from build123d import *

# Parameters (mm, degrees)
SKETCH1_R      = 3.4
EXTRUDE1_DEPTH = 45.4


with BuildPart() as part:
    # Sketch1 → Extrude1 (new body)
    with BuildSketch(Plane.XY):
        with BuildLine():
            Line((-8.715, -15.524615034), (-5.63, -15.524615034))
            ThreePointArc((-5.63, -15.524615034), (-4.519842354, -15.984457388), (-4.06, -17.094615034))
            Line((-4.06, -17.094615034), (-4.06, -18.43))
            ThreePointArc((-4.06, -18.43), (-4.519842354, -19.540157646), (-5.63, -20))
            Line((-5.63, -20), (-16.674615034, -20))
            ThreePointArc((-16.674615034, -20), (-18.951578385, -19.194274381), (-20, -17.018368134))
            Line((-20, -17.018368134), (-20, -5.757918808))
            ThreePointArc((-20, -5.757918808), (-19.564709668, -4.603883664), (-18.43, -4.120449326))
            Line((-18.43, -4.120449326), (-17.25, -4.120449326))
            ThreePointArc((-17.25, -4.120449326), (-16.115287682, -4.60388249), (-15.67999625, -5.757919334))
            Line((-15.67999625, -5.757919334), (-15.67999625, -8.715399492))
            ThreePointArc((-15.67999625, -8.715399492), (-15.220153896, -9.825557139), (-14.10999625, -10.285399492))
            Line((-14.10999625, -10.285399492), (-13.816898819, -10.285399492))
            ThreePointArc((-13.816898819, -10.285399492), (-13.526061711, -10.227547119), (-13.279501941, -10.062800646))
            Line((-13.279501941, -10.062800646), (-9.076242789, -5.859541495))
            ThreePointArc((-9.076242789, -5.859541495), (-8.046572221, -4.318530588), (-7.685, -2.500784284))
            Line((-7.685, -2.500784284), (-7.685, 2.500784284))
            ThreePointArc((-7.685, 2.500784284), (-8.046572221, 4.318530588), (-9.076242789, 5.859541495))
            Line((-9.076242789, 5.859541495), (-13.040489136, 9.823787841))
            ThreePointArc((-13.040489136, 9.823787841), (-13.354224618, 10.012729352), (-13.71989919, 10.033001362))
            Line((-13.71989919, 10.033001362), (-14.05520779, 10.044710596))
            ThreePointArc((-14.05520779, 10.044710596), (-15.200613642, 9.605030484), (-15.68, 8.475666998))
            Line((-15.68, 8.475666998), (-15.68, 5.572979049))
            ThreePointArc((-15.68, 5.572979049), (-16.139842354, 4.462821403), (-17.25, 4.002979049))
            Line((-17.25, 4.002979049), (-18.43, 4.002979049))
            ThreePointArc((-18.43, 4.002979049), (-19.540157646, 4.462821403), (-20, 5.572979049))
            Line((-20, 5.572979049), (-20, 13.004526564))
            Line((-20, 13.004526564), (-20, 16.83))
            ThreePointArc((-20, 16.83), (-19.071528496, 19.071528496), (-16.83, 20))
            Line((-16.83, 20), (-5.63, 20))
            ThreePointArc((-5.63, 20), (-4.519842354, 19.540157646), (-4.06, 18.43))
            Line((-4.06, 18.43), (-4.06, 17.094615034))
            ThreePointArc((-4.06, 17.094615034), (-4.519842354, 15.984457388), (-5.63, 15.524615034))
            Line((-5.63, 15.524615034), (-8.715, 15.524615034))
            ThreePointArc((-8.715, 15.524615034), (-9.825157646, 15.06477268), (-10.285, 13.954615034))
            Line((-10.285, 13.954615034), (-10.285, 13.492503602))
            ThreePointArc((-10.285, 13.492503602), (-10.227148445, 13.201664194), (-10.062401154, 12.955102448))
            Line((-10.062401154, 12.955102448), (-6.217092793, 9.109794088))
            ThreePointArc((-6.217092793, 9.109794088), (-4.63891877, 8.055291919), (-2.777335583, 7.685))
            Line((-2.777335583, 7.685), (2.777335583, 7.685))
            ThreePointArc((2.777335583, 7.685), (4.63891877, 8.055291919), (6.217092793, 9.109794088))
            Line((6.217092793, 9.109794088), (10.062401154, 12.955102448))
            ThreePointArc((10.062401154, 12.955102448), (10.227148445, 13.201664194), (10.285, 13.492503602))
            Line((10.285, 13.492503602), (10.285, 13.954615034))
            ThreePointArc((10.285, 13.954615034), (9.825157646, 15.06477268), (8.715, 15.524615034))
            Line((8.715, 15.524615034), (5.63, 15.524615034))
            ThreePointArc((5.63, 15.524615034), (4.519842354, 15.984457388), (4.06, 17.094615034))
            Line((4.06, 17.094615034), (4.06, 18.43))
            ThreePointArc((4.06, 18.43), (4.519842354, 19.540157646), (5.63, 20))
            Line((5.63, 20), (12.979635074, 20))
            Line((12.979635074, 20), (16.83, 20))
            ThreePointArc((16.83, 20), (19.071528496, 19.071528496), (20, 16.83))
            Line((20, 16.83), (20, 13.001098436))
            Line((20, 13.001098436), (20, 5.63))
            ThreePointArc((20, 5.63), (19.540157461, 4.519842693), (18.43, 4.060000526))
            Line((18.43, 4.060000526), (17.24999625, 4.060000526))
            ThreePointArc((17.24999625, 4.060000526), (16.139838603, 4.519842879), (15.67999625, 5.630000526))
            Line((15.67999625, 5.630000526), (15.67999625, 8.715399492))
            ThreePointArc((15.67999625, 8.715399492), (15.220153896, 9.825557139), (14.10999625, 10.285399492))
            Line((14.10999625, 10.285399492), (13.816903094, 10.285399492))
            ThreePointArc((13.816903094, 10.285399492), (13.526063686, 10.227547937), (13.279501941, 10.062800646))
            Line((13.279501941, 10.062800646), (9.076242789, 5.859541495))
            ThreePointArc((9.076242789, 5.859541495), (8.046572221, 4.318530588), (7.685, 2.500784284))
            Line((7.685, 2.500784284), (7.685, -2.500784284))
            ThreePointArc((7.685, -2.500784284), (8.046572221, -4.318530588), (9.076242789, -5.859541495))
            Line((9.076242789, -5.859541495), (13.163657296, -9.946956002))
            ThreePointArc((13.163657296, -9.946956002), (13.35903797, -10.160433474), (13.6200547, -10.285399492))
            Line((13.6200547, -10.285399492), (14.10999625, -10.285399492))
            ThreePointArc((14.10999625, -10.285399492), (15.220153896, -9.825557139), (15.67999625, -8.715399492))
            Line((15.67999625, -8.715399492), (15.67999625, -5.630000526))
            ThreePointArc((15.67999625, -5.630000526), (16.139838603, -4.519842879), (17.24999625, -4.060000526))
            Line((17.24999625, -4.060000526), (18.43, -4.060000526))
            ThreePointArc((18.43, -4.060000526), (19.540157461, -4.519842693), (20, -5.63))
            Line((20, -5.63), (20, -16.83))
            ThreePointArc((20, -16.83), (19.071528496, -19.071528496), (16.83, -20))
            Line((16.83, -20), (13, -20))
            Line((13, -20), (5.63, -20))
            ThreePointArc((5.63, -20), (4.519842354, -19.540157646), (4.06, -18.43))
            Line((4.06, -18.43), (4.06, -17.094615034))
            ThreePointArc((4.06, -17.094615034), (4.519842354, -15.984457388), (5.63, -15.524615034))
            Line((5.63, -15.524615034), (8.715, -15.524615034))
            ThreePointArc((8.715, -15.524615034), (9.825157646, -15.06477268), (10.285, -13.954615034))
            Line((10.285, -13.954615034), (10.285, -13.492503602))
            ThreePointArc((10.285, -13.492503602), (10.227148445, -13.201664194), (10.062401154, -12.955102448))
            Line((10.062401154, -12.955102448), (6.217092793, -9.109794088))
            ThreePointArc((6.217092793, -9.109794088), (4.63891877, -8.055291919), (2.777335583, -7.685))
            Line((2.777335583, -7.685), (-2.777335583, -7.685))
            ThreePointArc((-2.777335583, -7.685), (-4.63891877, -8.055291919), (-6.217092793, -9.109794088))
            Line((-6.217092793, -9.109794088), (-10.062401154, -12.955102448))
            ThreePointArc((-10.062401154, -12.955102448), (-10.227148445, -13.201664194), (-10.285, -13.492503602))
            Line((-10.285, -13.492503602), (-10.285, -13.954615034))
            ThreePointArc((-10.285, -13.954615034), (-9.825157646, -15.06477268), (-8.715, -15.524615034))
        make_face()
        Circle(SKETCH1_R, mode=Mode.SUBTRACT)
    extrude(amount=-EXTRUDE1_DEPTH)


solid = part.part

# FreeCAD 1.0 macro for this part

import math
import FreeCAD as App
import Part
import Sketcher
from FreeCAD import Vector
Q = App.Units.Quantity

doc = App.newDocument("Part")
body = doc.addObject("PartDesign::Body", "Body")

sketch1 = body.newObject("Sketcher::SketchObject", "Sketch")
sketch1.AttachmentSupport = (doc.getObject("XY_Plane"), [""])
sketch1.MapMode = "FlatFace"
sketch1.addGeometry(Part.LineSegment(Vector(-5.63, -15.52, 0), Vector(-8.71, -15.52, 0)), False)
sketch1.addGeometry(Part.ArcOfCircle(Part.Circle(Vector(-8.71, -13.95, 0), Vector(0, 0, 1), 1.57), math.radians(-180), math.radians(-90)), False)
sketch1.addGeometry(Part.LineSegment(Vector(-10.29, -13.95, 0), Vector(-10.29, -13.49, 0)), False)
sketch1.addGeometry(Part.ArcOfCircle(Part.Circle(Vector(-9.52, -13.49, 0), Vector(0, 0, 1), 0.76), math.radians(135), math.radians(180)), False)
sketch1.addGeometry(Part.LineSegment(Vector(-10.06, -12.96, 0), Vector(-6.22, -9.11, 0)), False)
sketch1.addGeometry(Part.ArcOfCircle(Part.Circle(Vector(-2.78, -12.55, 0), Vector(0, 0, 1), 4.86), math.radians(90), math.radians(135)), False)
sketch1.addGeometry(Part.LineSegment(Vector(-2.78, -7.68, 0), Vector(2.78, -7.68, 0)), False)
sketch1.addGeometry(Part.ArcOfCircle(Part.Circle(Vector(2.78, -12.55, 0), Vector(0, 0, 1), 4.86), math.radians(45), math.radians(90)), False)
sketch1.addGeometry(Part.LineSegment(Vector(6.22, -9.11, 0), Vector(10.06, -12.96, 0)), False)
sketch1.addGeometry(Part.ArcOfCircle(Part.Circle(Vector(9.52, -13.49, 0), Vector(0, 0, 1), 0.76), math.radians(0), math.radians(45)), False)
sketch1.addGeometry(Part.LineSegment(Vector(10.29, -13.49, 0), Vector(10.29, -13.95, 0)), False)
sketch1.addGeometry(Part.ArcOfCircle(Part.Circle(Vector(8.71, -13.95, 0), Vector(0, 0, 1), 1.57), math.radians(-90), math.radians(0)), False)
sketch1.addGeometry(Part.LineSegment(Vector(8.71, -15.52, 0), Vector(5.63, -15.52, 0)), False)
sketch1.addGeometry(Part.ArcOfCircle(Part.Circle(Vector(5.63, -17.09, 0), Vector(0, 0, 1), 1.57), math.radians(90), math.radians(180)), False)
sketch1.addGeometry(Part.LineSegment(Vector(4.06, -17.09, 0), Vector(4.06, -18.43, 0)), False)
sketch1.addGeometry(Part.ArcOfCircle(Part.Circle(Vector(5.63, -18.43, 0), Vector(0, 0, 1), 1.57), math.radians(-180), math.radians(-90)), False)
sketch1.addGeometry(Part.LineSegment(Vector(5.63, -20, 0), Vector(16.83, -20, 0)), False)
sketch1.addGeometry(Part.ArcOfCircle(Part.Circle(Vector(16.83, -16.83, 0), Vector(0, 0, 1), 3.17), math.radians(-90), math.radians(0)), False)
sketch1.addGeometry(Part.LineSegment(Vector(20, -16.83, 0), Vector(20, -5.63, 0)), False)
sketch1.addGeometry(Part.ArcOfCircle(Part.Circle(Vector(18.43, -5.63, 0), Vector(0, 0, 1), 1.57), math.radians(0), math.radians(90)), False)
sketch1.addGeometry(Part.LineSegment(Vector(18.43, -4.06, 0), Vector(17.25, -4.06, 0)), False)
sketch1.addGeometry(Part.ArcOfCircle(Part.Circle(Vector(17.25, -5.63, 0), Vector(0, 0, 1), 1.57), math.radians(90), math.radians(180)), False)
sketch1.addGeometry(Part.LineSegment(Vector(15.68, -5.63, 0), Vector(15.68, -8.72, 0)), False)
sketch1.addGeometry(Part.ArcOfCircle(Part.Circle(Vector(14.11, -8.72, 0), Vector(0, 0, 1), 1.57), math.radians(-90), math.radians(0)), False)
sketch1.addGeometry(Part.LineSegment(Vector(14.11, -10.29, 0), Vector(13.62, -10.29, 0)), False)
sketch1.addGeometry(Part.ArcOfCircle(Part.Circle(Vector(13.81, -9.55, 0), Vector(0, 0, 1), 0.76), math.radians(-149), math.radians(-105)), False)
sketch1.addGeometry(Part.LineSegment(Vector(13.16, -9.95, 0), Vector(9.08, -5.86, 0)), False)
sketch1.addGeometry(Part.ArcOfCircle(Part.Circle(Vector(12.44, -2.5, 0), Vector(0, 0, 1), 4.75), math.radians(-180), math.radians(-135)), False)
sketch1.addGeometry(Part.LineSegment(Vector(7.68, -2.5, 0), Vector(7.68, 2.5, 0)), False)
sketch1.addGeometry(Part.ArcOfCircle(Part.Circle(Vector(12.44, 2.5, 0), Vector(0, 0, 1), 4.75), math.radians(135), math.radians(180)), False)
sketch1.addGeometry(Part.LineSegment(Vector(9.08, 5.86, 0), Vector(13.28, 10.06, 0)), False)
sketch1.addGeometry(Part.ArcOfCircle(Part.Circle(Vector(13.82, 9.53, 0), Vector(0, 0, 1), 0.76), math.radians(90), math.radians(135)), False)
sketch1.addGeometry(Part.LineSegment(Vector(13.82, 10.29, 0), Vector(14.11, 10.29, 0)), False)
sketch1.addGeometry(Part.ArcOfCircle(Part.Circle(Vector(14.11, 8.72, 0), Vector(0, 0, 1), 1.57), math.radians(0), math.radians(90)), False)
sketch1.addGeometry(Part.LineSegment(Vector(15.68, 8.72, 0), Vector(15.68, 5.63, 0)), False)
sketch1.addGeometry(Part.ArcOfCircle(Part.Circle(Vector(17.25, 5.63, 0), Vector(0, 0, 1), 1.57), math.radians(180), math.radians(270)), False)
sketch1.addGeometry(Part.LineSegment(Vector(17.25, 4.06, 0), Vector(18.43, 4.06, 0)), False)
sketch1.addGeometry(Part.ArcOfCircle(Part.Circle(Vector(18.43, 5.63, 0), Vector(0, 0, 1), 1.57), math.radians(-90), math.radians(0)), False)
sketch1.addGeometry(Part.LineSegment(Vector(20, 5.63, 0), Vector(20, 16.83, 0)), False)
sketch1.addGeometry(Part.ArcOfCircle(Part.Circle(Vector(16.83, 16.83, 0), Vector(0, 0, 1), 3.17), math.radians(0), math.radians(90)), False)
sketch1.addGeometry(Part.LineSegment(Vector(16.83, 20, 0), Vector(5.63, 20, 0)), False)
sketch1.addGeometry(Part.ArcOfCircle(Part.Circle(Vector(5.63, 18.43, 0), Vector(0, 0, 1), 1.57), math.radians(90), math.radians(180)), False)
sketch1.addGeometry(Part.LineSegment(Vector(4.06, 18.43, 0), Vector(4.06, 17.09, 0)), False)
sketch1.addGeometry(Part.ArcOfCircle(Part.Circle(Vector(5.63, 17.09, 0), Vector(0, 0, 1), 1.57), math.radians(-180), math.radians(-90)), False)
sketch1.addGeometry(Part.LineSegment(Vector(5.63, 15.52, 0), Vector(8.71, 15.52, 0)), False)
sketch1.addGeometry(Part.ArcOfCircle(Part.Circle(Vector(8.71, 13.95, 0), Vector(0, 0, 1), 1.57), math.radians(0), math.radians(90)), False)
sketch1.addGeometry(Part.LineSegment(Vector(10.29, 13.95, 0), Vector(10.29, 13.49, 0)), False)
sketch1.addGeometry(Part.ArcOfCircle(Part.Circle(Vector(9.52, 13.49, 0), Vector(0, 0, 1), 0.76), math.radians(-45), math.radians(0)), False)
sketch1.addGeometry(Part.LineSegment(Vector(10.06, 12.96, 0), Vector(6.22, 9.11, 0)), False)
sketch1.addGeometry(Part.ArcOfCircle(Part.Circle(Vector(2.78, 12.55, 0), Vector(0, 0, 1), 4.86), math.radians(-90), math.radians(-45)), False)
sketch1.addGeometry(Part.LineSegment(Vector(2.78, 7.68, 0), Vector(-2.78, 7.68, 0)), False)
sketch1.addGeometry(Part.ArcOfCircle(Part.Circle(Vector(-2.78, 12.55, 0), Vector(0, 0, 1), 4.86), math.radians(-135), math.radians(-90)), False)
sketch1.addGeometry(Part.LineSegment(Vector(-6.22, 9.11, 0), Vector(-10.06, 12.96, 0)), False)
sketch1.addGeometry(Part.ArcOfCircle(Part.Circle(Vector(-9.52, 13.49, 0), Vector(0, 0, 1), 0.76), math.radians(180), math.radians(225)), False)
sketch1.addGeometry(Part.LineSegment(Vector(-10.29, 13.49, 0), Vector(-10.29, 13.95, 0)), False)
sketch1.addGeometry(Part.ArcOfCircle(Part.Circle(Vector(-8.71, 13.95, 0), Vector(0, 0, 1), 1.57), math.radians(90), math.radians(180)), False)
sketch1.addGeometry(Part.LineSegment(Vector(-8.71, 15.52, 0), Vector(-5.63, 15.52, 0)), False)
sketch1.addGeometry(Part.ArcOfCircle(Part.Circle(Vector(-5.63, 17.09, 0), Vector(0, 0, 1), 1.57), math.radians(-90), math.radians(0)), False)
sketch1.addGeometry(Part.LineSegment(Vector(-4.06, 17.09, 0), Vector(-4.06, 18.43, 0)), False)
sketch1.addGeometry(Part.ArcOfCircle(Part.Circle(Vector(-5.63, 18.43, 0), Vector(0, 0, 1), 1.57), math.radians(0), math.radians(90)), False)
sketch1.addGeometry(Part.LineSegment(Vector(-5.63, 20, 0), Vector(-16.83, 20, 0)), False)
sketch1.addGeometry(Part.ArcOfCircle(Part.Circle(Vector(-16.83, 16.83, 0), Vector(0, 0, 1), 3.17), math.radians(90), math.radians(180)), False)
sketch1.addGeometry(Part.LineSegment(Vector(-20, 16.83, 0), Vector(-20, 5.57, 0)), False)
sketch1.addGeometry(Part.ArcOfCircle(Part.Circle(Vector(-18.43, 5.57, 0), Vector(0, 0, 1), 1.57), math.radians(-180), math.radians(-90)), False)
sketch1.addGeometry(Part.LineSegment(Vector(-18.43, 4, 0), Vector(-17.25, 4, 0)), False)
sketch1.addGeometry(Part.ArcOfCircle(Part.Circle(Vector(-17.25, 5.57, 0), Vector(0, 0, 1), 1.57), math.radians(-90), math.radians(0)), False)
sketch1.addGeometry(Part.LineSegment(Vector(-15.68, 5.57, 0), Vector(-15.68, 8.48, 0)), False)
sketch1.addGeometry(Part.ArcOfCircle(Part.Circle(Vector(-14.11, 8.48, 0), Vector(0, 0, 1), 1.57), math.radians(88), math.radians(180)), False)
sketch1.addGeometry(Part.LineSegment(Vector(-14.06, 10.04, 0), Vector(-13.72, 10.03, 0)), False)
sketch1.addGeometry(Part.ArcOfCircle(Part.Circle(Vector(-13.58, 9.29, 0), Vector(0, 0, 1), 0.76), math.radians(45), math.radians(101)), False)
sketch1.addGeometry(Part.LineSegment(Vector(-13.04, 9.82, 0), Vector(-9.08, 5.86, 0)), False)
sketch1.addGeometry(Part.ArcOfCircle(Part.Circle(Vector(-12.44, 2.5, 0), Vector(0, 0, 1), 4.75), math.radians(0), math.radians(45)), False)
sketch1.addGeometry(Part.LineSegment(Vector(-7.68, 2.5, 0), Vector(-7.68, -2.5, 0)), False)
sketch1.addGeometry(Part.ArcOfCircle(Part.Circle(Vector(-12.44, -2.5, 0), Vector(0, 0, 1), 4.75), math.radians(-45), math.radians(0)), False)
sketch1.addGeometry(Part.LineSegment(Vector(-9.08, -5.86, 0), Vector(-13.28, -10.06, 0)), False)
sketch1.addGeometry(Part.ArcOfCircle(Part.Circle(Vector(-13.82, -9.53, 0), Vector(0, 0, 1), 0.76), math.radians(-90), math.radians(-45)), False)
sketch1.addGeometry(Part.LineSegment(Vector(-13.82, -10.29, 0), Vector(-14.11, -10.29, 0)), False)
sketch1.addGeometry(Part.ArcOfCircle(Part.Circle(Vector(-14.11, -8.72, 0), Vector(0, 0, 1), 1.57), math.radians(180), math.radians(270)), False)
sketch1.addGeometry(Part.LineSegment(Vector(-15.68, -8.72, 0), Vector(-15.68, -5.76, 0)), False)
sketch1.addGeometry(Part.ArcOfCircle(Part.Circle(Vector(-17.25, -5.69, 0), Vector(0, 0, 1), 1.57), math.radians(-2), math.radians(90)), False)
sketch1.addGeometry(Part.LineSegment(Vector(-17.25, -4.12, 0), Vector(-18.43, -4.12, 0)), False)
sketch1.addGeometry(Part.ArcOfCircle(Part.Circle(Vector(-18.43, -5.69, 0), Vector(0, 0, 1), 1.57), math.radians(90), math.radians(182)), False)
sketch1.addGeometry(Part.LineSegment(Vector(-20, -5.76, 0), Vector(-20, -17.02, 0)), False)
sketch1.addGeometry(Part.ArcOfCircle(Part.Circle(Vector(-16.84, -16.83, 0), Vector(0, 0, 1), 3.17), math.radians(-177), math.radians(-87)), False)
sketch1.addGeometry(Part.LineSegment(Vector(-16.67, -20, 0), Vector(-5.63, -20, 0)), False)
sketch1.addGeometry(Part.ArcOfCircle(Part.Circle(Vector(-5.63, -18.43, 0), Vector(0, 0, 1), 1.57), math.radians(-90), math.radians(0)), False)
sketch1.addGeometry(Part.LineSegment(Vector(-4.06, -18.43, 0), Vector(-4.06, -17.09, 0)), False)
sketch1.addGeometry(Part.ArcOfCircle(Part.Circle(Vector(-5.63, -17.09, 0), Vector(0, 0, 1), 1.57), math.radians(0), math.radians(90)), False)
sketch1.addGeometry(Part.Circle(Vector(0, 0, 0), Vector(0, 0, 1), 3.4), False)
sketch1.addConstraint(Sketcher.Constraint("Tangent", 0, 2, 1, 2))
sketch1.addConstraint(Sketcher.Constraint("Tangent", 1, 1, 2, 1))
sketch1.addConstraint(Sketcher.Constraint("Tangent", 2, 2, 3, 2))
sketch1.addConstraint(Sketcher.Constraint("Tangent", 3, 1, 4, 1))
sketch1.addConstraint(Sketcher.Constraint("Tangent", 4, 2, 5, 2))
sketch1.addConstraint(Sketcher.Constraint("Tangent", 5, 1, 6, 1))
sketch1.addConstraint(Sketcher.Constraint("Tangent", 6, 2, 7, 2))
sketch1.addConstraint(Sketcher.Constraint("Tangent", 7, 1, 8, 1))
sketch1.addConstraint(Sketcher.Constraint("Tangent", 8, 2, 9, 2))
sketch1.addConstraint(Sketcher.Constraint("Tangent", 9, 1, 10, 1))
sketch1.addConstraint(Sketcher.Constraint("Tangent", 10, 2, 11, 2))
sketch1.addConstraint(Sketcher.Constraint("Tangent", 11, 1, 12, 1))
sketch1.addConstraint(Sketcher.Constraint("Tangent", 12, 2, 13, 1))
sketch1.addConstraint(Sketcher.Constraint("Tangent", 13, 2, 14, 1))
sketch1.addConstraint(Sketcher.Constraint("Tangent", 14, 2, 15, 1))
sketch1.addConstraint(Sketcher.Constraint("Tangent", 15, 2, 16, 1))
sketch1.addConstraint(Sketcher.Constraint("Tangent", 16, 2, 17, 1))
sketch1.addConstraint(Sketcher.Constraint("Tangent", 17, 2, 18, 1))
sketch1.addConstraint(Sketcher.Constraint("Tangent", 18, 2, 19, 1))
sketch1.addConstraint(Sketcher.Constraint("Tangent", 19, 2, 20, 1))
sketch1.addConstraint(Sketcher.Constraint("Tangent", 20, 2, 21, 1))
sketch1.addConstraint(Sketcher.Constraint("Tangent", 21, 2, 22, 1))
sketch1.addConstraint(Sketcher.Constraint("Tangent", 22, 2, 23, 2))
sketch1.addConstraint(Sketcher.Constraint("Tangent", 23, 1, 24, 1))
sketch1.addConstraint(Sketcher.Constraint("Coincident", 24, 2, 25, 2))
sketch1.addConstraint(Sketcher.Constraint("Coincident", 25, 1, 26, 1))
sketch1.addConstraint(Sketcher.Constraint("Tangent", 26, 2, 27, 2))
sketch1.addConstraint(Sketcher.Constraint("Tangent", 27, 1, 28, 1))
sketch1.addConstraint(Sketcher.Constraint("Tangent", 28, 2, 29, 2))
sketch1.addConstraint(Sketcher.Constraint("Tangent", 29, 1, 30, 1))
sketch1.addConstraint(Sketcher.Constraint("Tangent", 30, 2, 31, 2))
sketch1.addConstraint(Sketcher.Constraint("Tangent", 31, 1, 32, 1))
sketch1.addConstraint(Sketcher.Constraint("Tangent", 32, 2, 33, 2))
sketch1.addConstraint(Sketcher.Constraint("Tangent", 33, 1, 34, 1))
sketch1.addConstraint(Sketcher.Constraint("Tangent", 34, 2, 35, 1))
sketch1.addConstraint(Sketcher.Constraint("Tangent", 35, 2, 36, 1))
sketch1.addConstraint(Sketcher.Constraint("Tangent", 36, 2, 37, 1))
sketch1.addConstraint(Sketcher.Constraint("Tangent", 37, 2, 38, 1))
sketch1.addConstraint(Sketcher.Constraint("Tangent", 38, 2, 39, 1))
sketch1.addConstraint(Sketcher.Constraint("Tangent", 39, 2, 40, 1))
sketch1.addConstraint(Sketcher.Constraint("Tangent", 40, 2, 41, 1))
sketch1.addConstraint(Sketcher.Constraint("Tangent", 41, 2, 42, 1))
sketch1.addConstraint(Sketcher.Constraint("Tangent", 42, 2, 43, 1))
sketch1.addConstraint(Sketcher.Constraint("Tangent", 43, 2, 44, 1))
sketch1.addConstraint(Sketcher.Constraint("Tangent", 44, 2, 45, 2))
sketch1.addConstraint(Sketcher.Constraint("Tangent", 45, 1, 46, 1))
sketch1.addConstraint(Sketcher.Constraint("Tangent", 46, 2, 47, 2))
sketch1.addConstraint(Sketcher.Constraint("Tangent", 47, 1, 48, 1))
sketch1.addConstraint(Sketcher.Constraint("Tangent", 48, 2, 49, 2))
sketch1.addConstraint(Sketcher.Constraint("Tangent", 49, 1, 50, 1))
sketch1.addConstraint(Sketcher.Constraint("Tangent", 50, 2, 51, 2))
sketch1.addConstraint(Sketcher.Constraint("Tangent", 51, 1, 52, 1))
sketch1.addConstraint(Sketcher.Constraint("Tangent", 52, 2, 53, 2))
sketch1.addConstraint(Sketcher.Constraint("Tangent", 53, 1, 54, 1))
sketch1.addConstraint(Sketcher.Constraint("Tangent", 54, 2, 55, 2))
sketch1.addConstraint(Sketcher.Constraint("Tangent", 55, 1, 56, 1))
sketch1.addConstraint(Sketcher.Constraint("Tangent", 56, 2, 57, 1))
sketch1.addConstraint(Sketcher.Constraint("Tangent", 57, 2, 58, 1))
sketch1.addConstraint(Sketcher.Constraint("Tangent", 58, 2, 59, 1))
sketch1.addConstraint(Sketcher.Constraint("Tangent", 59, 2, 60, 1))
sketch1.addConstraint(Sketcher.Constraint("Tangent", 60, 2, 61, 1))
sketch1.addConstraint(Sketcher.Constraint("Tangent", 61, 2, 62, 1))
sketch1.addConstraint(Sketcher.Constraint("Tangent", 62, 2, 63, 1))
sketch1.addConstraint(Sketcher.Constraint("Tangent", 63, 2, 64, 1))
sketch1.addConstraint(Sketcher.Constraint("Tangent", 64, 2, 65, 1))
sketch1.addConstraint(Sketcher.Constraint("Tangent", 65, 2, 66, 1))
sketch1.addConstraint(Sketcher.Constraint("Tangent", 66, 2, 67, 2))
sketch1.addConstraint(Sketcher.Constraint("Tangent", 67, 1, 68, 1))
sketch1.addConstraint(Sketcher.Constraint("Coincident", 68, 2, 69, 2))
sketch1.addConstraint(Sketcher.Constraint("Tangent", 69, 1, 70, 1))
sketch1.addConstraint(Sketcher.Constraint("Tangent", 70, 2, 71, 2))
sketch1.addConstraint(Sketcher.Constraint("Tangent", 71, 1, 72, 1))
sketch1.addConstraint(Sketcher.Constraint("Tangent", 72, 2, 73, 2))
sketch1.addConstraint(Sketcher.Constraint("Tangent", 73, 1, 74, 1))
sketch1.addConstraint(Sketcher.Constraint("Tangent", 74, 2, 75, 2))
sketch1.addConstraint(Sketcher.Constraint("Coincident", 75, 1, 76, 1))
sketch1.addConstraint(Sketcher.Constraint("Tangent", 76, 2, 77, 2))
sketch1.addConstraint(Sketcher.Constraint("Tangent", 77, 1, 78, 1))
sketch1.addConstraint(Sketcher.Constraint("Coincident", 78, 2, 79, 1))
sketch1.addConstraint(Sketcher.Constraint("Coincident", 79, 2, 80, 1))
sketch1.addConstraint(Sketcher.Constraint("Coincident", 80, 2, 81, 1))
sketch1.addConstraint(Sketcher.Constraint("Coincident", 81, 2, 82, 1))
sketch1.addConstraint(Sketcher.Constraint("Coincident", 82, 2, 83, 1))
sketch1.addConstraint(Sketcher.Constraint("Coincident", 83, 2, 84, 1))
sketch1.addConstraint(Sketcher.Constraint("Tangent", 84, 2, 85, 1))
sketch1.addConstraint(Sketcher.Constraint("Tangent", 85, 2, 86, 1))
sketch1.addConstraint(Sketcher.Constraint("Tangent", 86, 2, 87, 1))
sketch1.addConstraint(Sketcher.Constraint("Tangent", 87, 2, 0, 1))
sketch1.addConstraint(Sketcher.Constraint("Horizontal", 0))
sketch1.addConstraint(Sketcher.Constraint("Vertical", 2))
sketch1.addConstraint(Sketcher.Constraint("Horizontal", 6))
sketch1.addConstraint(Sketcher.Constraint("Vertical", 10))
sketch1.addConstraint(Sketcher.Constraint("Horizontal", 12))
sketch1.addConstraint(Sketcher.Constraint("Vertical", 14))
sketch1.addConstraint(Sketcher.Constraint("Horizontal", 16))
sketch1.addConstraint(Sketcher.Constraint("Vertical", 18))
sketch1.addConstraint(Sketcher.Constraint("Horizontal", 20))
sketch1.addConstraint(Sketcher.Constraint("Vertical", 22))
sketch1.addConstraint(Sketcher.Constraint("Horizontal", 24))
sketch1.addConstraint(Sketcher.Constraint("Vertical", 28))
sketch1.addConstraint(Sketcher.Constraint("Horizontal", 32))
sketch1.addConstraint(Sketcher.Constraint("Vertical", 34))
sketch1.addConstraint(Sketcher.Constraint("Horizontal", 36))
sketch1.addConstraint(Sketcher.Constraint("Vertical", 38))
sketch1.addConstraint(Sketcher.Constraint("Horizontal", 40))
sketch1.addConstraint(Sketcher.Constraint("Vertical", 42))
sketch1.addConstraint(Sketcher.Constraint("Horizontal", 44))
sketch1.addConstraint(Sketcher.Constraint("Vertical", 46))
sketch1.addConstraint(Sketcher.Constraint("Horizontal", 50))
sketch1.addConstraint(Sketcher.Constraint("Vertical", 54))
sketch1.addConstraint(Sketcher.Constraint("Horizontal", 56))
sketch1.addConstraint(Sketcher.Constraint("Vertical", 58))
sketch1.addConstraint(Sketcher.Constraint("Horizontal", 60))
sketch1.addConstraint(Sketcher.Constraint("Vertical", 62))
sketch1.addConstraint(Sketcher.Constraint("Horizontal", 64))
sketch1.addConstraint(Sketcher.Constraint("Vertical", 66))
sketch1.addConstraint(Sketcher.Constraint("Vertical", 72))
sketch1.addConstraint(Sketcher.Constraint("Horizontal", 76))
sketch1.addConstraint(Sketcher.Constraint("Vertical", 78))
sketch1.addConstraint(Sketcher.Constraint("Horizontal", 80))
sketch1.addConstraint(Sketcher.Constraint("Vertical", 82))
sketch1.addConstraint(Sketcher.Constraint("Horizontal", 84))
sketch1.addConstraint(Sketcher.Constraint("Vertical", 86))
sketch1.addConstraint(Sketcher.Constraint("Coincident", 88, 3, -1, 1))
sketch1.addConstraint(Sketcher.Constraint("Equal", 5, 7))
sketch1.addConstraint(Sketcher.Constraint("Equal", 3, 9))
sketch1.addConstraint(Sketcher.Constraint("Equal", 1, 11))
sketch1.addConstraint(Sketcher.Constraint("Equal", 11, 13))
sketch1.addConstraint(Sketcher.Constraint("Equal", 13, 15))
sketch1.addConstraint(Sketcher.Constraint("Equal", 15, 19))
sketch1.addConstraint(Sketcher.Constraint("Equal", 19, 21))
sketch1.addConstraint(Sketcher.Constraint("Equal", 21, 23))
sketch1.addConstraint(Sketcher.Constraint("Equal", 9, 25))
sketch1.addConstraint(Sketcher.Constraint("Equal", 27, 29))
sketch1.addConstraint(Sketcher.Constraint("Equal", 25, 31))
sketch1.addConstraint(Sketcher.Constraint("Equal", 23, 33))
sketch1.addConstraint(Sketcher.Constraint("Equal", 33, 35))
sketch1.addConstraint(Sketcher.Constraint("Equal", 35, 37))
sketch1.addConstraint(Sketcher.Constraint("Equal", 17, 39))
sketch1.addConstraint(Sketcher.Constraint("Equal", 37, 41))
sketch1.addConstraint(Sketcher.Constraint("Equal", 41, 43))
sketch1.addConstraint(Sketcher.Constraint("Equal", 43, 45))
sketch1.addConstraint(Sketcher.Constraint("Equal", 31, 47))
sketch1.addConstraint(Sketcher.Constraint("Equal", 7, 49))
sketch1.addConstraint(Sketcher.Constraint("Equal", 49, 51))
sketch1.addConstraint(Sketcher.Constraint("Equal", 47, 53))
sketch1.addConstraint(Sketcher.Constraint("Equal", 45, 55))
sketch1.addConstraint(Sketcher.Constraint("Equal", 55, 57))
sketch1.addConstraint(Sketcher.Constraint("Equal", 57, 59))
sketch1.addConstraint(Sketcher.Constraint("Equal", 39, 61))
sketch1.addConstraint(Sketcher.Constraint("Equal", 59, 63))
sketch1.addConstraint(Sketcher.Constraint("Equal", 63, 65))
sketch1.addConstraint(Sketcher.Constraint("Equal", 65, 67))
sketch1.addConstraint(Sketcher.Constraint("Equal", 53, 69))
sketch1.addConstraint(Sketcher.Constraint("Equal", 29, 71))
sketch1.addConstraint(Sketcher.Constraint("Equal", 71, 73))
sketch1.addConstraint(Sketcher.Constraint("Equal", 69, 75))
sketch1.addConstraint(Sketcher.Constraint("Equal", 67, 77))
sketch1.addConstraint(Sketcher.Constraint("Equal", 77, 79))
sketch1.addConstraint(Sketcher.Constraint("Equal", 79, 81))
sketch1.addConstraint(Sketcher.Constraint("Equal", 61, 83))
sketch1.addConstraint(Sketcher.Constraint("Equal", 81, 85))
sketch1.addConstraint(Sketcher.Constraint("Equal", 85, 87))
sketch1.addConstraint(Sketcher.Constraint("Symmetric", 1, 3, 45, 3, -1, 1))
sketch1.addConstraint(Sketcher.Constraint("Symmetric", 5, 3, 49, 3, -1, 1))
sketch1.addConstraint(Sketcher.Constraint("Symmetric", 9, 3, 53, 3, -1, 1))
sketch1.addConstraint(Sketcher.Constraint("Symmetric", 13, 3, 57, 3, -1, 1))
sketch1.addConstraint(Sketcher.Constraint("Symmetric", 17, 3, 61, 3, -1, 1))
sketch1.addConstraint(Sketcher.Constraint("Symmetric", 27, 3, 71, 3, -1, 1))
sketch1.addConstraint(Sketcher.Constraint("Symmetric", 31, 3, 75, 3, -1, 1))
sketch1.addConstraint(Sketcher.Constraint("Symmetric", 41, 3, 85, 3, -1, 1))
sketch1.addConstraint(Sketcher.Constraint("Symmetric", 3, 3, 9, 3, -2))
sketch1.addConstraint(Sketcher.Constraint("Symmetric", 43, 3, 57, 3, -2))
sketch1.addConstraint(Sketcher.Constraint("Symmetric", 39, 3, 61, 3, -2))
sketch1.addConstraint(Sketcher.Constraint("Symmetric", 23, 3, 77, 3, -2))
sketch1.addConstraint(Sketcher.Constraint("Symmetric", 48, 2, 51, 1, -2))
sketch1.addConstraint(Sketcher.Constraint("Symmetric", 29, 1, 70, 2, -2))
sketch1.addConstraint(Sketcher.Constraint("Symmetric", 26, 2, 73, 1, -2))
sketch1.addConstraint(Sketcher.Constraint("Symmetric", 21, 3, 35, 3, -1))
sketch1.addConstraint(Sketcher.Constraint("Perpendicular", 4, 8))
sketch1.addConstraint(Sketcher.Constraint("Parallel", 8, 26))
sketch1.addConstraint(Sketcher.Constraint("Perpendicular", 26, 30))
sketch1.addConstraint(Sketcher.Constraint("Horizontal", 78, 2, 81, 2))
sketch1.addConstraint(Sketcher.Constraint("Vertical", 64, 2, 79, 2))
sketch1.addConstraint(Sketcher.Constraint("Vertical", 63, 2, 80, 2))
sketch1.addConstraint(Sketcher.Constraint("Vertical", 62, 2, 81, 2))
sketch1.addConstraint(Sketcher.Constraint("Equal", 60, 18))
sketch1.addConstraint(Sketcher.Constraint("Diameter", 88, Q("6.8 mm")))
sketch1.addConstraint(Sketcher.Constraint("Angle", 68, Q("-2 deg")))
sketch1.addConstraint(Sketcher.Constraint("Radius", 1, Q("1.57 mm")))
sketch1.addConstraint(Sketcher.Constraint("Radius", 3, Q("0.76 mm")))
sketch1.addConstraint(Sketcher.Constraint("Radius", 17, Q("3.17 mm")))
sketch1.addConstraint(Sketcher.Constraint("Radius", 27, Q("4.75 mm")))
sketch1.addConstraint(Sketcher.Constraint("DistanceX", 16, 1, 16, 2, Q("11.2 mm")))
sketch1.addConstraint(Sketcher.Constraint("DistanceY", 15, 2, -1, 1, Q("20 mm")))
sketch1.addConstraint(Sketcher.Constraint("DistanceX", -1, 1, 17, 2, Q("20 mm")))
sketch1.addConstraint(Sketcher.Constraint("DistanceX", 64, 1, 64, 2, Q("1.18 mm")))
sketch1.addConstraint(Sketcher.Constraint("DistanceX", 0, 2, 0, 1, Q("3.085 mm")))
sketch1.addConstraint(Sketcher.Constraint("Radius", 5, Q("4.864551 mm")))
sketch1.addConstraint(Sketcher.Constraint("DistanceY", 22, 2, 22, 1, Q("3.085399 mm")))
sketch1.addConstraint(Sketcher.Constraint("DistanceX", -1, 1, 27, 3, Q("12.435 mm")))
sketch1.addConstraint(Sketcher.Constraint("DistanceY", 5, 1, -1, 1, Q("7.685 mm")))
sketch1.addConstraint(Sketcher.Constraint("DistanceY", -1, 1, 68, 2, Q("10.033001 mm")))
sketch1.addConstraint(Sketcher.Constraint("DistanceX", 6, 1, 6, 2, Q("5.554671 mm")))
sketch1.addConstraint(Sketcher.Constraint("DistanceX", 24, 2, 24, 1, Q("0.489942 mm")))
sketch1.addConstraint(Sketcher.Constraint("DistanceY", 2, 1, 2, 2, Q("0.462111 mm")))
sketch1.addConstraint(Sketcher.Constraint("DistanceY", 28, 1, 28, 2, Q("5.001569 mm")))
sketch1.addConstraint(Sketcher.Constraint("DistanceY", 62, 2, 62, 1, Q("11.257021 mm")))
sketch1.addConstraint(Sketcher.Constraint("DistanceY", 78, 1, 78, 2, Q("2.95748 mm")))
sketch1.addConstraint(Sketcher.Constraint("DistanceY", 82, 2, 82, 1, Q("11.260449 mm")))
sketch1.addConstraint(Sketcher.Constraint("DistanceX", 68, 2, -1, 1, Q("13.719899 mm")))
sketch1.addConstraint(Sketcher.Constraint("DistanceX", 75, 1, -1, 1, Q("13.816899 mm")))
sketch1.addConstraint(Sketcher.Constraint("DistanceX", 20, 2, 20, 1, Q("1.180004 mm")))
sketch1.addConstraint(Sketcher.Constraint("DistanceX", 84, 1, 84, 2, Q("11.044615 mm")))
sketch1.addConstraint(Sketcher.Constraint("DistanceX", -1, 1, 25, 3, Q("13.811732 mm")))
sketch1.addConstraint(Sketcher.Constraint("DistanceY", 79, 3, -1, 1, Q("5.690449 mm")))
pad1 = body.newObject("PartDesign::Pad", "Pad")
pad1.Profile = sketch1
pad1.Length = 45.4
pad1.Reversed = True

doc.recompute()
